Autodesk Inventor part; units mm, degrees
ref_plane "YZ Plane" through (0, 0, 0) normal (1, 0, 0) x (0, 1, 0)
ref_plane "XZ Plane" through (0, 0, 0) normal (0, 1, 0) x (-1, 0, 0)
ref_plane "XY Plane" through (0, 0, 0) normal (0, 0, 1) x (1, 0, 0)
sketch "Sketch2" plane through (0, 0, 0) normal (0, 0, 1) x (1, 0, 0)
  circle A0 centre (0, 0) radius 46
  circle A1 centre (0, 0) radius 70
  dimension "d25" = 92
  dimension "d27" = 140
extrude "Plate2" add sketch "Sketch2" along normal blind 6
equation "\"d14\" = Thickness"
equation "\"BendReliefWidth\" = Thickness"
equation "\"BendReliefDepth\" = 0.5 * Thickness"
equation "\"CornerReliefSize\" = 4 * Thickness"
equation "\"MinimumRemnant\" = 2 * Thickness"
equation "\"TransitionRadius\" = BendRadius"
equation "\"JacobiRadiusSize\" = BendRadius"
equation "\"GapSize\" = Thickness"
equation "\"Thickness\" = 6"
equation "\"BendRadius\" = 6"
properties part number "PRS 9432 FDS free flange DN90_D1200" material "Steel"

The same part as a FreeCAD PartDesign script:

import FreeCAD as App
import Part
import Sketcher
Q = App.Units.Quantity

doc = App.newDocument("Part")
body = doc.addObject("PartDesign::Body", "Body")

# Sketch on XY plane
sketch1 = doc.addObject("Sketcher::SketchObject", "Sketch")
body.addObject(sketch1)
sketch1.AttachmentSupport = (doc.XY_Plane, [""])
sketch1.MapMode = "FlatFace"
sketch1.addGeometry(Part.Circle(App.Vector(0, 0, 0), App.Vector(0, 0, 1), 70), False)
sketch1.addGeometry(Part.Circle(App.Vector(0, 0, 0), App.Vector(0, 0, 1), 46), False)
sketch1.addConstraint(Sketcher.Constraint("Coincident", 0, 3, -1, 1))
sketch1.addConstraint(Sketcher.Constraint("Coincident", 1, 3, -1, 1))
sketch1.addConstraint(Sketcher.Constraint("Diameter", 0, Q("140 mm")))
sketch1.addConstraint(Sketcher.Constraint("Diameter", 1, Q("92 mm")))
pad1 = doc.addObject("PartDesign::Pad", "Pad")
body.addObject(pad1)
pad1.Profile = sketch1
pad1.Length = 6

doc.recompute()
